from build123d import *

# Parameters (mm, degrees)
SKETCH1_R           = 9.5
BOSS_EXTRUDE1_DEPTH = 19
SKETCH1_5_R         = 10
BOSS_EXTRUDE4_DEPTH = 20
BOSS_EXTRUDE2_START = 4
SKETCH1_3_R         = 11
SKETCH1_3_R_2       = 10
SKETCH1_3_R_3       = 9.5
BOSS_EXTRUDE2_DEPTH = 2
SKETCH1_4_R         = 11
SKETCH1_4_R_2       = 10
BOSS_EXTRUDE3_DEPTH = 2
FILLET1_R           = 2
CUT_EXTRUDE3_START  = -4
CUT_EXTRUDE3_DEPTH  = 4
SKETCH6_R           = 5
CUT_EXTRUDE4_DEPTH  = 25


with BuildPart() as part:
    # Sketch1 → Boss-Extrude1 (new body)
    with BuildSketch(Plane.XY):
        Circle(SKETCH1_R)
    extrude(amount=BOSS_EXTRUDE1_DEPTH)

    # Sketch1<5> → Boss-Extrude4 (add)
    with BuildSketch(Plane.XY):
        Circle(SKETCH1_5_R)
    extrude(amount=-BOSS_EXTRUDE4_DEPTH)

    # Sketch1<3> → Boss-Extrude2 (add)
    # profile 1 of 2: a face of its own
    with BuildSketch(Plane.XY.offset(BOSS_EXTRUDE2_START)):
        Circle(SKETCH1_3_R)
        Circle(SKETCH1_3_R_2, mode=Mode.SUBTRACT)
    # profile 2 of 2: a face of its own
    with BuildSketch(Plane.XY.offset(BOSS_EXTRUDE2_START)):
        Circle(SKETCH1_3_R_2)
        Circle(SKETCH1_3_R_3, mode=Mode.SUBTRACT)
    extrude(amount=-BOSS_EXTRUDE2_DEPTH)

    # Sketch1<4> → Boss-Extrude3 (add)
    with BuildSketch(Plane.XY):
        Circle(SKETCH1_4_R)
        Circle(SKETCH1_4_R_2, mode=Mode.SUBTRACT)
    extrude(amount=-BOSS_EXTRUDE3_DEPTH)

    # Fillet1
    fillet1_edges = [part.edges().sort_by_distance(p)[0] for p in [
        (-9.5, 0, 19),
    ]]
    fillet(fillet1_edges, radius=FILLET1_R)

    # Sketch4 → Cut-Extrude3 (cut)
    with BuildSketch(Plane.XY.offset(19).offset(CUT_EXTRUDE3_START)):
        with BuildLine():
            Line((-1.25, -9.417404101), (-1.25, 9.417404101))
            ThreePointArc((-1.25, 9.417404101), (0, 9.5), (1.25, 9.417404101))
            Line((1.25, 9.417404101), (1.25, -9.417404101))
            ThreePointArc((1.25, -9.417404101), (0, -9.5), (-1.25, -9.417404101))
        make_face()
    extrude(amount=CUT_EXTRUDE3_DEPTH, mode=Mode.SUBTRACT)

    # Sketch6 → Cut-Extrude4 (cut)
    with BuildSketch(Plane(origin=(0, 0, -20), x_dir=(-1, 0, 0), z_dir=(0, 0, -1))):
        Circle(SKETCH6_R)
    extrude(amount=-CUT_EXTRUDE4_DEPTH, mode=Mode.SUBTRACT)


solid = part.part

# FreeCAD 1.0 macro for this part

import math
import FreeCAD as App
import Part
import Sketcher

V = App.Vector


def edges_at(feature, points):
    """Names of the edges that pass closest to the given points."""
    edges = feature.Shape.Edges
    near = lambda p: min(range(len(edges)), key=lambda i: edges[i].distToShape(Part.Vertex(*p))[0])
    return sorted({f"Edge{near(p) + 1}" for p in points})

doc = App.newDocument("Part")
body = doc.addObject("PartDesign::Body", "Body")

# Sketch on XY plane
sketch1 = doc.addObject("Sketcher::SketchObject", "Sketch")
body.addObject(sketch1)
sketch1.AttachmentSupport = (doc.XY_Plane, [""])
sketch1.MapMode = "FlatFace"
sketch1.addGeometry(Part.Circle(V(0, 0, 0), V(0, 0, 1), 10), False)
sketch1.addConstraint([
    Sketcher.Constraint("Coincident", 0, 3, -1, 1),
    Sketcher.Constraint("Diameter", 0, 19.0),
])
pad1 = doc.addObject("PartDesign::Pad", "Pad")
body.addObject(pad1)
pad1.Profile = sketch1
pad1.Length = 19

# Sketch on XY plane
sketch2 = doc.addObject("Sketcher::SketchObject", "Sketch001")
body.addObject(sketch2)
sketch2.AttachmentSupport = (doc.XY_Plane, [""])
sketch2.MapMode = "FlatFace"
sketch2.addGeometry(Part.Circle(V(0, 0, 0), V(0, 0, 1), 10), False)
sketch2.addConstraint([
    Sketcher.Constraint("Coincident", 0, 3, -1, 1),
    Sketcher.Constraint("Diameter", 0, 20.0),
])
pad2 = doc.addObject("PartDesign::Pad", "Pad001")
body.addObject(pad2)
pad2.Profile = sketch2
pad2.Length = 20
pad2.Reversed = True

# Sketch on XY plane
sketch3 = doc.addObject("Sketcher::SketchObject", "Sketch002")
body.addObject(sketch3)
sketch3.AttachmentSupport = (doc.XY_Plane, [""])
sketch3.MapMode = "FlatFace"
sketch3.AttachmentOffset = App.Placement(V(0, 0, 4), App.Rotation())
sketch3.addGeometry([
    Part.Circle(V(0, 0, 0), V(0, 0, 1), 11),
    Part.Circle(V(0, 0, 0), V(0, 0, 1), 10),
], False)
sketch3.addConstraint([
    Sketcher.Constraint("Coincident", 0, 3, -1, 1),
    Sketcher.Constraint("Coincident", 1, 3, -1, 1),
    Sketcher.Constraint("Diameter", 0, 22.0),
    Sketcher.Constraint("Diameter", 1, 19.0),
])
pad3 = doc.addObject("PartDesign::Pad", "Pad002")
body.addObject(pad3)
pad3.Profile = sketch3
pad3.Length = 2
pad3.Reversed = True

# Sketch on XY plane
sketch4 = doc.addObject("Sketcher::SketchObject", "Sketch003")
body.addObject(sketch4)
sketch4.AttachmentSupport = (doc.XY_Plane, [""])
sketch4.MapMode = "FlatFace"
sketch4.addGeometry([
    Part.Circle(V(0, 0, 0), V(0, 0, 1), 11),
    Part.Circle(V(0, 0, 0), V(0, 0, 1), 10),
], False)
sketch4.addConstraint([
    Sketcher.Constraint("Coincident", 0, 3, -1, 1),
    Sketcher.Constraint("Coincident", 1, 3, -1, 1),
    Sketcher.Constraint("Diameter", 0, 22.0),
    Sketcher.Constraint("Diameter", 1, 20.0),
])
pad4 = doc.addObject("PartDesign::Pad", "Pad003")
body.addObject(pad4)
pad4.Profile = sketch4
pad4.Length = 2
pad4.Reversed = True
doc.recompute()

fillet = doc.addObject("PartDesign::Fillet", "Fillet")
body.addObject(fillet)
fillet.Base = (pad4, edges_at(pad4, [(-9.5, 0, 19)]))
fillet.Radius = 2

# Sketch on XY plane
sketch5 = doc.addObject("Sketcher::SketchObject", "Sketch004")
body.addObject(sketch5)
sketch5.AttachmentSupport = (doc.XY_Plane, [""])
sketch5.MapMode = "FlatFace"
sketch5.AttachmentOffset = App.Placement(V(0, 0, 15), App.Rotation())
sketch5.addGeometry([
    Part.LineSegment(V(-1.2, 9.4, 0), V(-1.2, -9.4, 0)),
    Part.ArcOfCircle(Part.Circle(V(0, 0, 0), V(0, 0, 1), 9.5), math.radians(-97.56), math.radians(-82.44)),
    Part.LineSegment(V(1.2, -9.4, 0), V(1.2, 9.4, 0)),
    Part.ArcOfCircle(Part.Circle(V(0, 0, 0), V(0, 0, 1), 9.5), math.radians(82.44), math.radians(97.56)),
], False)
sketch5.addConstraint([
    Sketcher.Constraint("Coincident", 0, 2, 1, 1),
    Sketcher.Constraint("Coincident", 1, 2, 2, 1),
    Sketcher.Constraint("Coincident", 2, 2, 3, 1),
    Sketcher.Constraint("Coincident", 3, 2, 0, 1),
    Sketcher.Constraint("Vertical", 0),
    Sketcher.Constraint("Vertical", 2),
    Sketcher.Constraint("Coincident", 1, 3, -1, 1),
    Sketcher.Constraint("Coincident", 3, 3, -1, 1),
    Sketcher.Constraint("Equal", 1, 3),
    Sketcher.Constraint("Horizontal", 0, 2, 1, 2),
    Sketcher.Constraint("Radius", 1, 9.5),
    Sketcher.Constraint("DistanceX", 0, 2, 1, 2, 2.5),
])
pocket1 = doc.addObject("PartDesign::Pocket", "Pocket")
body.addObject(pocket1)
pocket1.Profile = sketch5
pocket1.Length = 4
pocket1.Reversed = True

# Sketch on XY plane
sketch6 = doc.addObject("Sketcher::SketchObject", "Sketch005")
body.addObject(sketch6)
sketch6.AttachmentSupport = (doc.XY_Plane, [""])
sketch6.MapMode = "FlatFace"
sketch6.AttachmentOffset = App.Placement(V(0, 0, -20), App.Rotation())
sketch6.addGeometry(Part.Circle(V(0, 0, 0), V(0, 0, 1), 5), False)
sketch6.addConstraint([
    Sketcher.Constraint("Coincident", 0, 3, -1, 1),
    Sketcher.Constraint("Diameter", 0, 10.0),
])
pocket2 = doc.addObject("PartDesign::Pocket", "Pocket001")
body.addObject(pocket2)
pocket2.Profile = sketch6
pocket2.Length = 25
pocket2.Reversed = True

doc.recompute()
